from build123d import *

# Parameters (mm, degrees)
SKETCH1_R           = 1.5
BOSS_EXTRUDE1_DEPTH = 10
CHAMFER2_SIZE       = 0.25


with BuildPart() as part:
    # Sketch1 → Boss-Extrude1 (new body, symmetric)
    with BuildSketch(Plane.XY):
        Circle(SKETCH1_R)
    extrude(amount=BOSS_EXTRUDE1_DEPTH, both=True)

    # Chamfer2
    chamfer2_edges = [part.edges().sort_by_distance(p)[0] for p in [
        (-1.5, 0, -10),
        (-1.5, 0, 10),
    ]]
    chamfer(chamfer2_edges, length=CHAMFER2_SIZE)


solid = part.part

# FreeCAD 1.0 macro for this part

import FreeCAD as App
import Part
import Sketcher

V = App.Vector
Q = App.Units.Quantity


def edges_at(feature, points):
    """Names of the edges that pass closest to the given points."""
    edges = feature.Shape.Edges
    near = lambda p: min(range(len(edges)), key=lambda i: edges[i].distToShape(Part.Vertex(*p))[0])
    return sorted({f"Edge{near(p) + 1}" for p in points})

doc = App.newDocument("Part")
body = doc.addObject("PartDesign::Body", "Body")

# Sketch on XY plane
sketch1 = doc.addObject("Sketcher::SketchObject", "Sketch")
body.addObject(sketch1)
sketch1.AttachmentSupport = (doc.XY_Plane, [""])
sketch1.MapMode = "FlatFace"
sketch1.addGeometry(Part.Circle(V(0, 0, 0), V(0, 0, 1), 1.5), False)
sketch1.addConstraint(Sketcher.Constraint("Coincident", 0, 3, -1, 1))
sketch1.addConstraint(Sketcher.Constraint("Diameter", 0, Q("3 mm")))
pad1 = doc.addObject("PartDesign::Pad", "Pad")
body.addObject(pad1)
pad1.Profile = sketch1
pad1.Length = 20
pad1.Midplane = True
doc.recompute()

chamfer = doc.addObject("PartDesign::Chamfer", "Chamfer")
body.addObject(chamfer)
chamfer.Base = (pad1, edges_at(pad1, [(-1.5, 0, -10), (-1.5, 0, 10)]))
chamfer.Size = 0.25

doc.recompute()
